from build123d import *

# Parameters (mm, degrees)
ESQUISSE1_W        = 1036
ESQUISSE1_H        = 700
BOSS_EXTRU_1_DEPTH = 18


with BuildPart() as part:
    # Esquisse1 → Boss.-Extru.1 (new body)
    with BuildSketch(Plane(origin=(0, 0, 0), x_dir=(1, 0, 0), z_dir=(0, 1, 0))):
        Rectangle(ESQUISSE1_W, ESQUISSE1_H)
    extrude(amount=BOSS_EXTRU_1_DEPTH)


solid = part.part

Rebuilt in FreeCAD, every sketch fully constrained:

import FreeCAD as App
import Part
import Sketcher
Q = App.Units.Quantity


def add_polygon(sketch, points):
    """Adds a closed chain of lines whose ends are joined by coincident constraints."""
    first, n = sketch.GeometryCount, len(points)
    for a, b in zip(points, points[1:] + points[:1]):
        sketch.addGeometry(Part.LineSegment(App.Vector(*a, 0), App.Vector(*b, 0)), False)
    for i in range(n):
        sketch.addConstraint(Sketcher.Constraint("Coincident", first + i, 2, first + (i + 1) % n, 1))

doc = App.newDocument("Part")
body = doc.addObject("PartDesign::Body", "Body")

sketch1 = doc.addObject("Sketcher::SketchObject", "Sketch")
body.addObject(sketch1)
sketch1.AttachmentSupport = (doc.XZ_Plane, [""])
sketch1.MapMode = "FlatFace"
add_polygon(sketch1, [(-518, -350), (-518, 350), (518, 350), (518, -350)])
sketch1.addConstraint([
    Sketcher.Constraint("Vertical", 0),
    Sketcher.Constraint("Horizontal", 1),
    Sketcher.Constraint("Vertical", 2),
    Sketcher.Constraint("Horizontal", 3),
    Sketcher.Constraint("Symmetric", 0, 2, 2, 2, -1, 1),
    Sketcher.Constraint("DistanceX", 1, 1, 1, 2, Q("1036 mm")),
    Sketcher.Constraint("DistanceY", 0, 1, 0, 2, Q("700 mm")),
])
pad1 = doc.addObject("PartDesign::Pad", "Pad")
body.addObject(pad1)
pad1.Profile = sketch1
pad1.Length = 18
pad1.Reversed = True

doc.recompute()
